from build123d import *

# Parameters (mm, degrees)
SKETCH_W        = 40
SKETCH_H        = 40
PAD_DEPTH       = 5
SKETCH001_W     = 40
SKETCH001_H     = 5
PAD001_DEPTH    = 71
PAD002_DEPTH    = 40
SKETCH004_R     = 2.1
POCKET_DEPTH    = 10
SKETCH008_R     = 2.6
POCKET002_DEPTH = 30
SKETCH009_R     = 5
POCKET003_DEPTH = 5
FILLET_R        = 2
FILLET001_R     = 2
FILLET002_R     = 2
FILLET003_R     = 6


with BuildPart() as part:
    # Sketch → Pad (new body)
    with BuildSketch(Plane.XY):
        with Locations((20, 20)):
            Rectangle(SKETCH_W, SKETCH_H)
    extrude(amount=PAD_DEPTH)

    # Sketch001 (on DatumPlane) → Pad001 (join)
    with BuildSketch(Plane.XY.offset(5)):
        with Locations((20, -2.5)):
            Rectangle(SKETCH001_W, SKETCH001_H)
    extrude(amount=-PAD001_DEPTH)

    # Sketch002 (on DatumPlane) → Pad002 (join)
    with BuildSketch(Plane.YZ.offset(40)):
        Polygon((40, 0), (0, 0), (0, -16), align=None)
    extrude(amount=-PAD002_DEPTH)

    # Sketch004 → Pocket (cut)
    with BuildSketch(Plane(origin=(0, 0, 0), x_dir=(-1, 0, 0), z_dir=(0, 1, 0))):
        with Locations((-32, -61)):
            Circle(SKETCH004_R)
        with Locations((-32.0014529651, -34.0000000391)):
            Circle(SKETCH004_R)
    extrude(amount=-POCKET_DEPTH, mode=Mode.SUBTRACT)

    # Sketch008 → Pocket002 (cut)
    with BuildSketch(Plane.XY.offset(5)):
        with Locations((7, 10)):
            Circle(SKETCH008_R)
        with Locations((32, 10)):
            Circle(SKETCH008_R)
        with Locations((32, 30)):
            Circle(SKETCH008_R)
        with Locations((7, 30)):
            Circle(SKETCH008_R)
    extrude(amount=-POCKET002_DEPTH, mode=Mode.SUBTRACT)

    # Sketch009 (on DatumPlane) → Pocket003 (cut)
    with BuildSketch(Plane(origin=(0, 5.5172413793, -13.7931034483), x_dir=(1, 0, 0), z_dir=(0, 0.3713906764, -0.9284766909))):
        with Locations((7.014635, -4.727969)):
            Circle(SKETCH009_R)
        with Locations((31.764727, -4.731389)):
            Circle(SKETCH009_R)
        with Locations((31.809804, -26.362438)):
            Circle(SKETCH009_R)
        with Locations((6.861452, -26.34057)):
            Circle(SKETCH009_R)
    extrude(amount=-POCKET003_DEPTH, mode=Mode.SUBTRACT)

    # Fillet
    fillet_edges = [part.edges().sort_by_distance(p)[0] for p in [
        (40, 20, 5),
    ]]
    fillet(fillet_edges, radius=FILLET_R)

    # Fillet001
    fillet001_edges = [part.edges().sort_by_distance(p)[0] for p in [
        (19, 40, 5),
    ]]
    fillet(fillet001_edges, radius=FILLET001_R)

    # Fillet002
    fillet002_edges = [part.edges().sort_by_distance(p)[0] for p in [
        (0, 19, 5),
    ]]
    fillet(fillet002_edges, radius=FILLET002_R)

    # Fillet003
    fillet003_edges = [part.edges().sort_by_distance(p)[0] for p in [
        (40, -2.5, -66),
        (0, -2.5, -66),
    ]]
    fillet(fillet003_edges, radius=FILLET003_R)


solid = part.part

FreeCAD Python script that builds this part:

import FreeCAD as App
import Part
import Sketcher

V = App.Vector


def edges_at(feature, points):
    """Names of the edges that pass closest to the given points."""
    edges = feature.Shape.Edges
    near = lambda p: min(range(len(edges)), key=lambda i: edges[i].distToShape(Part.Vertex(*p))[0])
    return sorted({f"Edge{near(p) + 1}" for p in points})

doc = App.newDocument("Part")
body = doc.addObject("PartDesign::Body", "Body")

# Sketch on XY plane
sketch1 = body.newObject("Sketcher::SketchObject", "Sketch")
sketch1.AttachmentSupport = (doc.getObject("XY_Plane"), [""])
sketch1.MapMode = "FlatFace"
sketch1.addGeometry([
    Part.LineSegment(V(0, 40, 0), V(0, 0, 0)),
    Part.LineSegment(V(0, 0, 0), V(40, 0, 0)),
    Part.LineSegment(V(40, 0, 0), V(40, 40, 0)),
    Part.LineSegment(V(40, 40, 0), V(0, 40, 0)),
], False)
sketch1.addConstraint([
    Sketcher.Constraint("Coincident", 0, 2, 1, 1),
    Sketcher.Constraint("Coincident", 1, 2, 2, 1),
    Sketcher.Constraint("Coincident", 2, 2, 3, 1),
    Sketcher.Constraint("Coincident", 3, 2, 0, 1),
    Sketcher.Constraint("Vertical", 0),
    Sketcher.Constraint("Horizontal", 1),
    Sketcher.Constraint("Vertical", 2),
    Sketcher.Constraint("Horizontal", 3),
    Sketcher.Constraint("Coincident", 0, 2, -1, 1),
    Sketcher.Constraint("Equal", 3, 0),
    Sketcher.Constraint("DistanceX", 1, 1, 1, 2, 40.0),
])
pad1 = body.newObject("PartDesign::Pad", "Pad")
pad1.Profile = sketch1
pad1.Length = 5

# Sketch on XY plane
sketch2 = body.newObject("Sketcher::SketchObject", "Sketch001")
sketch2.AttachmentSupport = (doc.getObject("XY_Plane"), [""])
sketch2.MapMode = "FlatFace"
sketch2.AttachmentOffset = App.Placement(V(0, 0, 5), App.Rotation())
sketch2.addGeometry([
    Part.LineSegment(V(0, 0, 0), V(0, -5, 0)),
    Part.LineSegment(V(0, -5, 0), V(40, -5, 0)),
    Part.LineSegment(V(40, -5, 0), V(40, 0, 0)),
    Part.LineSegment(V(40, 0, 0), V(0, 0, 0)),
], False)
sketch2.addConstraint([
    Sketcher.Constraint("Coincident", 0, 2, 1, 1),
    Sketcher.Constraint("Coincident", 1, 2, 2, 1),
    Sketcher.Constraint("Coincident", 2, 2, 3, 1),
    Sketcher.Constraint("Coincident", 3, 2, 0, 1),
    Sketcher.Constraint("Vertical", 0),
    Sketcher.Constraint("Horizontal", 1),
    Sketcher.Constraint("Vertical", 2),
    Sketcher.Constraint("Horizontal", 3),
    Sketcher.Constraint("Coincident", 3, 2, -1, 1),
    Sketcher.Constraint("DistanceX", 1, 1, 1, 2, 40.0),
    Sketcher.Constraint("DistanceY", 0, 2, 0, 1, 5.0),
])
pad2 = body.newObject("PartDesign::Pad", "Pad001")
pad2.Profile = sketch2
pad2.Length = 71
pad2.Reversed = True

# Sketch on YZ plane
sketch3 = body.newObject("Sketcher::SketchObject", "Sketch002")
sketch3.AttachmentSupport = (doc.getObject("YZ_Plane"), [""])
sketch3.MapMode = "FlatFace"
sketch3.AttachmentOffset = App.Placement(V(0, 0, 40), App.Rotation())
sketch3.addGeometry([
    Part.LineSegment(V(40, 0, 0), V(0, 0, 0)),
    Part.LineSegment(V(0, 0, 0), V(0, -16, 0)),
    Part.LineSegment(V(0, -16, 0), V(40, 0, 0)),
], False)
sketch3.addConstraint([
    Sketcher.Constraint("Coincident", 0, 2, 1, 1),
    Sketcher.Constraint("Coincident", 1, 2, 2, 1),
    Sketcher.Constraint("Coincident", 2, 2, 0, 1),
    Sketcher.Constraint("Horizontal", 0),
    Sketcher.Constraint("Vertical", 1),
    Sketcher.Constraint("Coincident", 0, 2, -1, 1),
    Sketcher.Constraint("DistanceX", 0, 2, 0, 1, 40.0),
    Sketcher.Constraint("DistanceY", 1, 2, 1, 1, 16.0),
])
pad3 = body.newObject("PartDesign::Pad", "Pad002")
pad3.Profile = sketch3
pad3.Length = 40
pad3.Reversed = True

# Sketch on XZ plane
sketch4 = body.newObject("Sketcher::SketchObject", "Sketch003")
sketch4.AttachmentSupport = (doc.getObject("XZ_Plane"), [""])
sketch4.MapMode = "FlatFace"
sketch4.addGeometry([
    Part.Circle(V(32, -61, 0), V(0, 0, 1), 2.1),
    Part.Circle(V(32, -34, 0), V(0, 0, 1), 2.1),
], False)
sketch4.addConstraint([
    Sketcher.Constraint("Equal", 0, 1),
    Sketcher.Constraint("Diameter", 0, 4.2),
    Sketcher.Constraint("DistanceX", -1, 1, 0, 3, 32.0),
    Sketcher.Constraint("DistanceY", 0, 3, -1, 1, 61.0),
    Sketcher.Constraint("DistanceY", 1, 3, -1, 1, 34.0),
    Sketcher.Constraint("DistanceX", -1, 1, 1, 3, 32.001453),
])
pocket1 = body.newObject("PartDesign::Pocket", "Pocket")
pocket1.Profile = sketch4
pocket1.Length = 10
pocket1.Reversed = True

# Sketch on XY plane
sketch5 = body.newObject("Sketcher::SketchObject", "Sketch004")
sketch5.AttachmentSupport = (doc.getObject("XY_Plane"), [""])
sketch5.MapMode = "FlatFace"
sketch5.AttachmentOffset = App.Placement(V(0, 0, 5), App.Rotation())
sketch5.addGeometry([
    Part.Circle(V(7, 10, 0), V(0, 0, 1), 2.6),
    Part.Circle(V(32, 10, 0), V(0, 0, 1), 2.6),
    Part.Circle(V(32, 30, 0), V(0, 0, 1), 2.6),
    Part.Circle(V(7, 30, 0), V(0, 0, 1), 2.6),
], False)
sketch5.addConstraint([
    Sketcher.Constraint("Equal", 0, 1),
    Sketcher.Constraint("Equal", 1, 2),
    Sketcher.Constraint("Equal", 2, 3),
    Sketcher.Constraint("Horizontal", 0, 3, 1, 3),
    Sketcher.Constraint("Horizontal", 2, 3, 3, 3),
    Sketcher.Constraint("Vertical", 1, 3, 2, 3),
    Sketcher.Constraint("Vertical", 0, 3, 3, 3),
    Sketcher.Constraint("Diameter", 0, 5.2),
    Sketcher.Constraint("DistanceX", -1, 1, 0, 3, 7.0),
    Sketcher.Constraint("DistanceY", -1, 1, 0, 3, 10.0),
    Sketcher.Constraint("DistanceX", -1, 1, 1, 3, 32.0),
    Sketcher.Constraint("DistanceY", -1, 1, 2, 3, 30.0),
])
pocket2 = body.newObject("PartDesign::Pocket", "Pocket001")
pocket2.Profile = sketch5
pocket2.Length = 30

# Sketch on an angled plane
sketch6 = body.newObject("Sketcher::SketchObject", "Sketch005")
sketch6.Placement = App.Placement(V(0, 5.517241, -13.793103), App.Rotation(V(1, 0, 0), V(0, -0.928476691, -0.371390676), V(0, 0.371390676, -0.928476691), "ZXY"))
sketch6.addGeometry([
    Part.Circle(V(7, -5, 0), V(0, 0, 1), 5),
    Part.Circle(V(32, -5, 0), V(0, 0, 1), 5),
    Part.Circle(V(32, -26, 0), V(0, 0, 1), 5),
    Part.Circle(V(7, -26, 0), V(0, 0, 1), 5),
], False)
sketch6.addConstraint([
    Sketcher.Constraint("Equal", 0, 1),
    Sketcher.Constraint("Equal", 1, 2),
    Sketcher.Constraint("Equal", 2, 3),
    Sketcher.Constraint("Diameter", 0, 10.0),
    Sketcher.Constraint("DistanceY", 3, 3, 0, 3, 21.612601),
    Sketcher.Constraint("DistanceY", 0, 3, -1, 1, 4.727969),
    Sketcher.Constraint("DistanceY", 1, 3, -1, 1, 4.731389),
    Sketcher.Constraint("DistanceY", 2, 3, 1, 3, 21.631049),
    Sketcher.Constraint("DistanceX", 0, 3, 2, 3, 24.795169),
    Sketcher.Constraint("DistanceX", 3, 3, 2, 3, 24.948352),
    Sketcher.Constraint("DistanceX", -1, 1, 0, 3, 7.014635),
    Sketcher.Constraint("DistanceX", -1, 1, 1, 3, 31.764727),
])
pocket3 = body.newObject("PartDesign::Pocket", "Pocket002")
pocket3.Profile = sketch6
pocket3.Length = 5
doc.recompute()

fillet = body.newObject("PartDesign::Fillet", "Fillet")
fillet.Base = (pocket3, edges_at(pocket3, [(40, 17.5, 5)]))
fillet.Radius = 2
doc.recompute()

fillet2 = body.newObject("PartDesign::Fillet", "Fillet001")
fillet2.Base = (fillet, edges_at(fillet, [(19, 40, 5)]))
fillet2.Radius = 2
doc.recompute()

fillet3 = body.newObject("PartDesign::Fillet", "Fillet002")
fillet3.Base = (fillet2, edges_at(fillet2, [(0, 16.5, 5)]))
fillet3.Radius = 2
doc.recompute()

fillet4 = body.newObject("PartDesign::Fillet", "Fillet003")
fillet4.Base = (fillet3, edges_at(fillet3, [(40, -2.5, -66), (0, -2.5, -66)]))
fillet4.Radius = 6

doc.recompute()
